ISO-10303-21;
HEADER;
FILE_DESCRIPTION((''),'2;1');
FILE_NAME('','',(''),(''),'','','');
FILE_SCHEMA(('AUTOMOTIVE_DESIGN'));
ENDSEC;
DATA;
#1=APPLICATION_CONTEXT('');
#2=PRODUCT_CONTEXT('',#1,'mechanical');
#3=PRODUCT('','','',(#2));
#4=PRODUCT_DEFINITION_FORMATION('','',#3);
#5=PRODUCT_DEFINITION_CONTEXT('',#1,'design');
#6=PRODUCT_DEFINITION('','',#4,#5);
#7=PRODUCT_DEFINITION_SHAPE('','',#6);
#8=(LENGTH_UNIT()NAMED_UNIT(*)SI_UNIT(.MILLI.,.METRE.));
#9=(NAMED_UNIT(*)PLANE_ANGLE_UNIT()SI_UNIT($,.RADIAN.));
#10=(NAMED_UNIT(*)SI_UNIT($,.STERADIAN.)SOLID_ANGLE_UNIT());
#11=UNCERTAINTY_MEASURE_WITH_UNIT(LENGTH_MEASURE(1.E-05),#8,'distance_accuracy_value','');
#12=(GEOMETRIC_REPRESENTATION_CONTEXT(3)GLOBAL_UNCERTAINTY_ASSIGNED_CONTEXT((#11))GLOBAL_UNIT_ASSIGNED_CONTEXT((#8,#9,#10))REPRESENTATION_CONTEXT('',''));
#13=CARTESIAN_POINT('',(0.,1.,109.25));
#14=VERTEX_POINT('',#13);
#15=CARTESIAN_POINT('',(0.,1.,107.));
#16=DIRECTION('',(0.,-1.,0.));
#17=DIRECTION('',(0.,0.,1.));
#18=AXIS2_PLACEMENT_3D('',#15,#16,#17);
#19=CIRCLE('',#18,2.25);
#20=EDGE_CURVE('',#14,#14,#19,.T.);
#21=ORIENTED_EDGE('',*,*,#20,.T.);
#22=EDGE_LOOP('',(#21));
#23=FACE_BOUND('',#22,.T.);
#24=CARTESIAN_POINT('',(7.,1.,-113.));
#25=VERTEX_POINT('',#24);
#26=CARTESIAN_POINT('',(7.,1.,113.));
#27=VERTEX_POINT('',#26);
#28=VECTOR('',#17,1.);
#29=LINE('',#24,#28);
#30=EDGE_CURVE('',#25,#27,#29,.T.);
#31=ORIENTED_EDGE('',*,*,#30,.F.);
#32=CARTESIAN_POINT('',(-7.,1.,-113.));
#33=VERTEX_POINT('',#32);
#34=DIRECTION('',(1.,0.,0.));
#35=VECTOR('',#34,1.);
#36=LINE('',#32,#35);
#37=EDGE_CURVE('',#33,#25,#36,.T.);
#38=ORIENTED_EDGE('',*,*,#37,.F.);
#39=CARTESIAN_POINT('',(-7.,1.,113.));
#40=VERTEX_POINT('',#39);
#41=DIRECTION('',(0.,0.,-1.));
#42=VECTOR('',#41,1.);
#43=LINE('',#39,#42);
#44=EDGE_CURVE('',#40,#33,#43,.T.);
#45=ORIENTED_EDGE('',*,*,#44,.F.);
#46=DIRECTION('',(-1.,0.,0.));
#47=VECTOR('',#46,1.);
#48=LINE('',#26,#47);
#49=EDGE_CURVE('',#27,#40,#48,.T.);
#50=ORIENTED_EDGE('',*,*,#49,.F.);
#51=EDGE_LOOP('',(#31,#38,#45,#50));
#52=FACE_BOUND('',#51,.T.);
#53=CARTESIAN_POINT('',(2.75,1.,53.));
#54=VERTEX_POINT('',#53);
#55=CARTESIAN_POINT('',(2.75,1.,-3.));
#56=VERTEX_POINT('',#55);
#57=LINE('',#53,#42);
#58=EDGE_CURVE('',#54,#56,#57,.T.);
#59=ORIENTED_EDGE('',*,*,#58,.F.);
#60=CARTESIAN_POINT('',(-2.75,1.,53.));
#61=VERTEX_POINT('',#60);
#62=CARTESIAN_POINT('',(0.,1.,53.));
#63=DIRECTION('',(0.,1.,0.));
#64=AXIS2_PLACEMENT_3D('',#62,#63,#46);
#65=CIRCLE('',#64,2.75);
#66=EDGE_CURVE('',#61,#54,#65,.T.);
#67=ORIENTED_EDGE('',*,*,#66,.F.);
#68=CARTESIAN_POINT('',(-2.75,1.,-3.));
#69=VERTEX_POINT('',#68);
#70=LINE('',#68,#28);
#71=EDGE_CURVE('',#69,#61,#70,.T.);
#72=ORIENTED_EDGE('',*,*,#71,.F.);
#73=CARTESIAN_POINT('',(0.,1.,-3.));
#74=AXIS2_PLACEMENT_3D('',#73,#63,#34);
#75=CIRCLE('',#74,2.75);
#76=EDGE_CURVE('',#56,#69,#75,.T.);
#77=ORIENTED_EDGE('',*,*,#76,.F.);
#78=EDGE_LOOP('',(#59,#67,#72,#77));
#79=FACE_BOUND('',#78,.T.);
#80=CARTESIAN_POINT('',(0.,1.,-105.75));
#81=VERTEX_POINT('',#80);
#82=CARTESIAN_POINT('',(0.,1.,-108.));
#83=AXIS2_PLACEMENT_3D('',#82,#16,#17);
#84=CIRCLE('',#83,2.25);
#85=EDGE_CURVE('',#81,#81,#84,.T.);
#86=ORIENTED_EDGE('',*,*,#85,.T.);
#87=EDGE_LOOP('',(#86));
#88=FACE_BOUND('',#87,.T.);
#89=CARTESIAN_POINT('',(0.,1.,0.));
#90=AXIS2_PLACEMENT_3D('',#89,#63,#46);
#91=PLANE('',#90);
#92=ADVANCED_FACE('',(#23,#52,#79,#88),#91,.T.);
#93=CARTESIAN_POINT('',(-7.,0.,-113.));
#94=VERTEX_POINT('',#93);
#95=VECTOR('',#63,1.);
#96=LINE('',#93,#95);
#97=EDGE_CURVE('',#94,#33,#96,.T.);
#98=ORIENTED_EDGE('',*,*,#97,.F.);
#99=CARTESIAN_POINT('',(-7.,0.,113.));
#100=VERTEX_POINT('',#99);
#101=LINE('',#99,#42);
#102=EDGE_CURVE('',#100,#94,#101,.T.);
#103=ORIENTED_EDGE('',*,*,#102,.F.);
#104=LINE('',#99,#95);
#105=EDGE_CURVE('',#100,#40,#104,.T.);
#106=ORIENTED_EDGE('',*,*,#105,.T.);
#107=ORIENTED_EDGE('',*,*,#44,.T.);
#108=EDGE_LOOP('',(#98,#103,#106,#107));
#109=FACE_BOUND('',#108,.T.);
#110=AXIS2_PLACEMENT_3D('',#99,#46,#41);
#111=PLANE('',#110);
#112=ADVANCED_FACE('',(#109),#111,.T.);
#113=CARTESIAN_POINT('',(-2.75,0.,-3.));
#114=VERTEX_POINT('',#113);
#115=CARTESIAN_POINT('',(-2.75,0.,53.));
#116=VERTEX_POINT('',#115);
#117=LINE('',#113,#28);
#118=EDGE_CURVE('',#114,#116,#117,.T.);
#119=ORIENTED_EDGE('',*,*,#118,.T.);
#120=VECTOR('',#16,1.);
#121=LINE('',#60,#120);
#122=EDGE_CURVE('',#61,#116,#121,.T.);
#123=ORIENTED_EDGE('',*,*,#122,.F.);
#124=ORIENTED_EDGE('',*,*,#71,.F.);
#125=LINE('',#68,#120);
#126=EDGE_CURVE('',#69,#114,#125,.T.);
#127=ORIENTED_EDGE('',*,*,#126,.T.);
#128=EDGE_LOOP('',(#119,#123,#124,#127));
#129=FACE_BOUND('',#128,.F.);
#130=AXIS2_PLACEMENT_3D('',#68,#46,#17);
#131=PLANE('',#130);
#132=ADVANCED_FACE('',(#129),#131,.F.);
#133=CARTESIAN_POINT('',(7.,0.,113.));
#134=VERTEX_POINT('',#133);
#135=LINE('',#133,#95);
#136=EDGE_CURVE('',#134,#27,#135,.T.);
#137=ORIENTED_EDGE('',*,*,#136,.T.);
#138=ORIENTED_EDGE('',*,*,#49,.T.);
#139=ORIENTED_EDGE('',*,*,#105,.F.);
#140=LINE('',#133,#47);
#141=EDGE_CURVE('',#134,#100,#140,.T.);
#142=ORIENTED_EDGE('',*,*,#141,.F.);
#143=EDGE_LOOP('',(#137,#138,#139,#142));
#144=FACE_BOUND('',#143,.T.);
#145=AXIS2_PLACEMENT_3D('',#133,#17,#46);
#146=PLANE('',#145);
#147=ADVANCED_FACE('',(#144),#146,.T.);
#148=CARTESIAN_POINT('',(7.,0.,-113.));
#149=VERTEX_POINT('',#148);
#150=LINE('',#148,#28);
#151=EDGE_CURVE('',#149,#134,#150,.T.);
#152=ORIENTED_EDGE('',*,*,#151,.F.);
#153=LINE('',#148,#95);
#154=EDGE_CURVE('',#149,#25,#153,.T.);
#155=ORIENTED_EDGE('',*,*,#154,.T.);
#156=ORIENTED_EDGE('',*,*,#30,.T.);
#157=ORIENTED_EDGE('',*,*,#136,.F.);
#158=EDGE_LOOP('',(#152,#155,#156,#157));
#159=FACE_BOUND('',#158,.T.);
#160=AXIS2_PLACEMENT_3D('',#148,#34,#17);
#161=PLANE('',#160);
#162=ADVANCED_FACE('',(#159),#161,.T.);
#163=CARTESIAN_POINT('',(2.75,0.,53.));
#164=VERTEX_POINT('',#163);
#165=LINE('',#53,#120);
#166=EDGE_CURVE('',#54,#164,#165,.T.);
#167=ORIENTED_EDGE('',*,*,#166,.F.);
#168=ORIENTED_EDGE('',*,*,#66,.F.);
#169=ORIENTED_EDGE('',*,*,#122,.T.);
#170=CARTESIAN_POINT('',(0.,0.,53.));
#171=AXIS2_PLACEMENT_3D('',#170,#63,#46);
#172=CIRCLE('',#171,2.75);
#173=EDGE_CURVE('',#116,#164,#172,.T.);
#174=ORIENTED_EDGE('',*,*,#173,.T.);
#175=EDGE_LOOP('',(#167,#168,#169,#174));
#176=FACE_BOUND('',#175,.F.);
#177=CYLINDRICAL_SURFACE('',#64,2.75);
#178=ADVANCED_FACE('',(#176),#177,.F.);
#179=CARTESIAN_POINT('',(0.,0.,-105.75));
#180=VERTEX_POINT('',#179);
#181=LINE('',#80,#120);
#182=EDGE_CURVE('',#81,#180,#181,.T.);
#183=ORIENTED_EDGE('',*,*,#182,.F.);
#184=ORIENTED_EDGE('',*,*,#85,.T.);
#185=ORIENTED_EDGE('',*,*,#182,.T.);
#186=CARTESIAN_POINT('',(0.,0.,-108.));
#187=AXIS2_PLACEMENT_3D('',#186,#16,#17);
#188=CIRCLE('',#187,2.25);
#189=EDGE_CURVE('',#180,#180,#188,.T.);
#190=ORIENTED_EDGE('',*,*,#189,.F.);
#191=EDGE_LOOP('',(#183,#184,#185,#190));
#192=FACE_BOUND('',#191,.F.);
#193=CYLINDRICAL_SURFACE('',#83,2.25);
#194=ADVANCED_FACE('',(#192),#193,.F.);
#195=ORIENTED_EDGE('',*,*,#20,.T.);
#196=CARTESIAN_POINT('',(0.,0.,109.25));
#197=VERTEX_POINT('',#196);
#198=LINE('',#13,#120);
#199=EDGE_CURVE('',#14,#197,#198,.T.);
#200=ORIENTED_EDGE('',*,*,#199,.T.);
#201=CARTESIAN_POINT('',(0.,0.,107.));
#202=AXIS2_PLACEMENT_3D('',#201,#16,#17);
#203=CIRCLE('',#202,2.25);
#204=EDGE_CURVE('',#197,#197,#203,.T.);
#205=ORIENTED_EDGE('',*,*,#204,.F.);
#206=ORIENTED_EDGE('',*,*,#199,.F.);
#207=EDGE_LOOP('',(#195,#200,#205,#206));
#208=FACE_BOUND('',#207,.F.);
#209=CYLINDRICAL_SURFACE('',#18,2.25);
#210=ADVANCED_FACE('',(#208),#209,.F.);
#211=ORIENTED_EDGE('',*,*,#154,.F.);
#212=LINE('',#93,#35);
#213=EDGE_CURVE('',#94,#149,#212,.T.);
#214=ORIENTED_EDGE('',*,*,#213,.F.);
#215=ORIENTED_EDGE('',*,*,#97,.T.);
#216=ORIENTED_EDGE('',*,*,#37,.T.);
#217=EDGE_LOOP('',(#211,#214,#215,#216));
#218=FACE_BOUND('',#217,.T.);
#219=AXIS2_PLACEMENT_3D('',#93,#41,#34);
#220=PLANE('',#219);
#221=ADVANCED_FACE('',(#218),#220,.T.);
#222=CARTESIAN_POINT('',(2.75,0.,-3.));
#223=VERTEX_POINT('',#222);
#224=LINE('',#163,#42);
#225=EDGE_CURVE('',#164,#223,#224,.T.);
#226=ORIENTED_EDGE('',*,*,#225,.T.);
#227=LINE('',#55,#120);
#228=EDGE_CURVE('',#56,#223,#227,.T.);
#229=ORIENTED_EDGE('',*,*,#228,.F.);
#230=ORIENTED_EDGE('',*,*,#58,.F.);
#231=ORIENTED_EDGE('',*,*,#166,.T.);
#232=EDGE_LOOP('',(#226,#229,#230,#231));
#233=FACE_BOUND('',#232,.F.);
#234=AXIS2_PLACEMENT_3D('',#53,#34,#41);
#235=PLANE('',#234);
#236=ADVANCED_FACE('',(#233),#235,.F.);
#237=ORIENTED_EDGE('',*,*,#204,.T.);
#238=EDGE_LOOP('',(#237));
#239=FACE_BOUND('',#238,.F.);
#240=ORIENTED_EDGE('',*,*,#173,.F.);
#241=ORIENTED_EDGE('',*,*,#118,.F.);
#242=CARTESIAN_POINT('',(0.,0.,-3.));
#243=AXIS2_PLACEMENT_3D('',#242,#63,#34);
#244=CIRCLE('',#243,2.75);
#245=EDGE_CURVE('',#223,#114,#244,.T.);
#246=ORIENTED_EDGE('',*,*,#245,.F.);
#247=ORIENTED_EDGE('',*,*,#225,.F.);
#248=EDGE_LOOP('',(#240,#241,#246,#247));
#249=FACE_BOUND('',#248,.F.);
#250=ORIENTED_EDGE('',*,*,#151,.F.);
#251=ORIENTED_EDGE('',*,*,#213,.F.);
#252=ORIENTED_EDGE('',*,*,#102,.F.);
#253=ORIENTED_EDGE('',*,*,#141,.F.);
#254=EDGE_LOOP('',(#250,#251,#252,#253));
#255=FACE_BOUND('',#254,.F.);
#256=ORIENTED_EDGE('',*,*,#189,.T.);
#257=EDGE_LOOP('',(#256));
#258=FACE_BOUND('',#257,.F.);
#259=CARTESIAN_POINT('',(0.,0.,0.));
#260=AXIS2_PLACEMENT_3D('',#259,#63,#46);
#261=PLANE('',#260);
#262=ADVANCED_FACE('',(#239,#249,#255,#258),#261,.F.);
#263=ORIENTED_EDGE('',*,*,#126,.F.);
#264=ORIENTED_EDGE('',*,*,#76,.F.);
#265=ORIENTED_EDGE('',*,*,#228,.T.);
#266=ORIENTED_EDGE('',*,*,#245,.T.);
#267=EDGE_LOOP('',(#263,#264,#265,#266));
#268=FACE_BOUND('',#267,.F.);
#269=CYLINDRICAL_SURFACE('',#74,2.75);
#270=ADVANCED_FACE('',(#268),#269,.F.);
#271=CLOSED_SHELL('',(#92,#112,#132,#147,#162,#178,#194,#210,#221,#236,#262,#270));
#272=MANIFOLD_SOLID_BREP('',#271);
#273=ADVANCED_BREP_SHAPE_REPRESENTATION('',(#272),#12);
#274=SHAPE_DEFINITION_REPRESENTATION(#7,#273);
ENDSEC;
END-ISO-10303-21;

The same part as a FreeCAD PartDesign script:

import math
import FreeCAD as App
import Part
import Sketcher

V = App.Vector
Q = App.Units.Quantity


def add_polygon(sketch, points):
    """Adds a closed chain of lines whose ends are joined by coincident constraints."""
    first, n = sketch.GeometryCount, len(points)
    for a, b in zip(points, points[1:] + points[:1]):
        sketch.addGeometry(Part.LineSegment(App.Vector(*a, 0), App.Vector(*b, 0)), False)
    for i in range(n):
        sketch.addConstraint(Sketcher.Constraint("Coincident", first + i, 2, first + (i + 1) % n, 1))

doc = App.newDocument("Part")
params = doc.addObject("Spreadsheet::Sheet", "Params")
for row, (alias, value) in enumerate([
    ("sketch1_width", "14 mm"),
    ("sketch1_height", "226 mm"),
    ("pad1_length", "1 mm"),
    ("sketch2_diameter", "4.5 mm"),
    ("hole_diameter", "4.5 mm"),
    ("sketch3_height", "56 mm"),
    ("sketch3_radius", "2.75 mm"),
    ("pocket1_length", "1 mm"),
], start=1):
    params.set(f"A{row}", alias)
    params.set(f"B{row}", "=" + value)
    params.setAlias(f"B{row}", alias)

body = doc.addObject("PartDesign::Body", "Body")

sketch1 = doc.addObject("Sketcher::SketchObject", "Sketch")
body.addObject(sketch1)
sketch1.AttachmentSupport = (doc.XZ_Plane, [""])
sketch1.MapMode = "FlatFace"
add_polygon(sketch1, [(-7, 113), (7, 113), (7, -113), (-7, -113)])
sketch1.addConstraint(Sketcher.Constraint("Horizontal", 0))
sketch1.addConstraint(Sketcher.Constraint("Vertical", 1))
sketch1.addConstraint(Sketcher.Constraint("Horizontal", 2))
sketch1.addConstraint(Sketcher.Constraint("Vertical", 3))
sketch1.addConstraint(Sketcher.Constraint("Symmetric", 0, 2, 2, 2, -1, 1))
sketch1.addConstraint(Sketcher.Constraint("DistanceX", 0, 1, 0, 2, Q("14 mm")))
sketch1.addConstraint(Sketcher.Constraint("DistanceY", 1, 2, 1, 1, Q("226 mm")))
sketch1.setExpression("Constraints[9]", "Params.sketch1_width")
sketch1.setExpression("Constraints[10]", "Params.sketch1_height")
pad1 = doc.addObject("PartDesign::Pad", "Pad")
body.addObject(pad1)
pad1.Profile = sketch1
pad1.setExpression("Length", "Params.pad1_length")
pad1.Reversed = True

sketch2 = doc.addObject("Sketcher::SketchObject", "Sketch001")
body.addObject(sketch2)
sketch2.AttachmentSupport = (doc.XZ_Plane, [""])
sketch2.MapMode = "FlatFace"
sketch2.AttachmentOffset = App.Placement(V(0, 0, -1), App.Rotation())
sketch2.addGeometry(Part.Circle(V(0, 107, 0), V(0, 0, 1), 2.2), False)
sketch2.addGeometry(Part.Circle(V(0, -108, 0), V(0, 0, 1), 2.2), False)
sketch2.addConstraint(Sketcher.Constraint("Equal", 0, 1))
sketch2.addConstraint(Sketcher.Constraint("PointOnObject", 0, 3, -2))
sketch2.addConstraint(Sketcher.Constraint("PointOnObject", 1, 3, -2))
sketch2.addConstraint(Sketcher.Constraint("Diameter", 0, Q("4.5 mm")))
sketch2.addConstraint(Sketcher.Constraint("DistanceY", -1, 1, 0, 3, Q("107 mm")))
sketch2.addConstraint(Sketcher.Constraint("DistanceY", 1, 3, -1, 1, Q("108 mm")))
sketch2.setExpression("Constraints[3]", "Params.sketch2_diameter")
doc.recompute()
hole = doc.addObject("PartDesign::Hole", "Hole")
body.addObject(hole)
hole.Profile = sketch2
hole.ThreadType = "None"
hole.setExpression("Diameter", "Params.hole_diameter")
hole.DepthType = "ThroughAll"
hole.Reversed = True

sketch3 = doc.addObject("Sketcher::SketchObject", "Sketch002")
body.addObject(sketch3)
sketch3.AttachmentSupport = (doc.XZ_Plane, [""])
sketch3.MapMode = "FlatFace"
sketch3.AttachmentOffset = App.Placement(V(0, 0, -1), App.Rotation())
sketch3.addGeometry(Part.ArcOfCircle(Part.Circle(V(0, -3, 0), V(0, 0, 1), 2.8), math.radians(180), math.radians(360)), False)
sketch3.addGeometry(Part.LineSegment(V(-2.8, -3, 0), V(-2.8, 53, 0)), False)
sketch3.addGeometry(Part.ArcOfCircle(Part.Circle(V(0, 53, 0), V(0, 0, 1), 2.8), math.radians(0), math.radians(180)), False)
sketch3.addGeometry(Part.LineSegment(V(2.8, 53, 0), V(2.8, -3, 0)), False)
sketch3.addConstraint(Sketcher.Constraint("Tangent", 0, 1, 1, 1))
sketch3.addConstraint(Sketcher.Constraint("Tangent", 1, 2, 2, 2))
sketch3.addConstraint(Sketcher.Constraint("Tangent", 2, 1, 3, 1))
sketch3.addConstraint(Sketcher.Constraint("Tangent", 3, 2, 0, 2))
sketch3.addConstraint(Sketcher.Constraint("Vertical", 1))
sketch3.addConstraint(Sketcher.Constraint("Vertical", 3))
sketch3.addConstraint(Sketcher.Constraint("PointOnObject", 0, 3, -2))
sketch3.addConstraint(Sketcher.Constraint("DistanceY", 1, 1, 1, 2, Q("56 mm")))
sketch3.addConstraint(Sketcher.Constraint("Radius", 0, Q("2.75 mm")))
sketch3.addConstraint(Sketcher.Constraint("DistanceY", 0, 3, -1, 1, Q("3 mm")))
sketch3.setExpression("Constraints[7]", "Params.sketch3_height")
sketch3.setExpression("Constraints[8]", "Params.sketch3_radius")
pocket1 = doc.addObject("PartDesign::Pocket", "Pocket")
body.addObject(pocket1)
pocket1.Profile = sketch3
pocket1.setExpression("Length", "Params.pocket1_length")
pocket1.Reversed = True

doc.recompute()
